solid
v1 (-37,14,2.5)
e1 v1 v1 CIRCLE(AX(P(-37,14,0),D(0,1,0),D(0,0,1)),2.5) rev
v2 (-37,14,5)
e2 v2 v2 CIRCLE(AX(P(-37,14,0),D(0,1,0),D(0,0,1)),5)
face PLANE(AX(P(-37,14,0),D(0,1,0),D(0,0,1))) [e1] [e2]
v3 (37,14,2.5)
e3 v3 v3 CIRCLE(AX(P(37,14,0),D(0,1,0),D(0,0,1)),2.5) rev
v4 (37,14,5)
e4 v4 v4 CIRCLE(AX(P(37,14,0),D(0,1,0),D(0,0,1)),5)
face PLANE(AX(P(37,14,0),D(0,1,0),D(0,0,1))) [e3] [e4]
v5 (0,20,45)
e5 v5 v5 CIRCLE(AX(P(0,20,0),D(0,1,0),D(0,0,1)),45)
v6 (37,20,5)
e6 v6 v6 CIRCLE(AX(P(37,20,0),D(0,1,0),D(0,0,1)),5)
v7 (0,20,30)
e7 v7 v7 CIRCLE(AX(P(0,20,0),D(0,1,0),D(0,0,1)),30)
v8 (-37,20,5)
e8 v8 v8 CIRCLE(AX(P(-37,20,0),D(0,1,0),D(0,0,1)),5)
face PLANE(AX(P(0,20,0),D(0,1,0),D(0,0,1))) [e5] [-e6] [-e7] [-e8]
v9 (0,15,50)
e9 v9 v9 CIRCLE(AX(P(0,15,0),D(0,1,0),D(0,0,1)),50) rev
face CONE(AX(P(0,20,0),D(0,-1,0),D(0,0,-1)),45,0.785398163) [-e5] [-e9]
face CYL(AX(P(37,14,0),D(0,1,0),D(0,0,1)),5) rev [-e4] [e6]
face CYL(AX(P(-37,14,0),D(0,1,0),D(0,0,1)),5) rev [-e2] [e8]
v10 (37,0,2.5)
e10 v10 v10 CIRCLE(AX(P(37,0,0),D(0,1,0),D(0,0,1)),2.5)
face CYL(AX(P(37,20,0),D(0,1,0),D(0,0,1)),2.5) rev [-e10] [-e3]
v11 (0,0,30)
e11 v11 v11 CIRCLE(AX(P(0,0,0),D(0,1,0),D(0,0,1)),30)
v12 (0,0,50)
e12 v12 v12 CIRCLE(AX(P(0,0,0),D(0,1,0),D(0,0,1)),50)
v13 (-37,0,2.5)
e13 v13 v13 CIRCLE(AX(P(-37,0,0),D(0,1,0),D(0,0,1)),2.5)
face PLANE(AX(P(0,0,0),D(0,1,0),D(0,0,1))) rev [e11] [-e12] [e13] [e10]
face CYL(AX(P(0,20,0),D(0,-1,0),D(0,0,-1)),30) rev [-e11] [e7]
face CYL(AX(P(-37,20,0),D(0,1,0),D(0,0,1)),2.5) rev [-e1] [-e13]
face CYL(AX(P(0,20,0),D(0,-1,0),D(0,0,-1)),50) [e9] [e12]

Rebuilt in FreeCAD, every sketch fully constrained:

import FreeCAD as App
import Part
import Sketcher

V = App.Vector


def edges_at(feature, points):
    """Names of the edges that pass closest to the given points."""
    edges = feature.Shape.Edges
    near = lambda p: min(range(len(edges)), key=lambda i: edges[i].distToShape(Part.Vertex(*p))[0])
    return sorted({f"Edge{near(p) + 1}" for p in points})

doc = App.newDocument("Part")
params = doc.addObject("Spreadsheet::Sheet", "Params")
for row, (alias, value) in enumerate([
    ("sketch1_diameter", "100 mm"),
    ("sketch1_diameter2", "60 mm"),
    ("pad1_length", "20 mm"),
    ("chamfer_size", "5 mm"),
    ("sketch2_diameter", "5 mm"),
    ("hole_diameter", "5 mm"),
    ("hole_depth", "50 mm"),
    ("sketch3_diameter", "10 mm"),
    ("pocket1_length", "6 mm"),
], start=1):
    params.set(f"A{row}", alias)
    params.set(f"B{row}", "=" + value)
    params.setAlias(f"B{row}", alias)

body = doc.addObject("PartDesign::Body", "Body")

sketch1 = body.newObject("Sketcher::SketchObject", "Sketch")
sketch1.AttachmentSupport = (doc.getObject("XZ_Plane"), [""])
sketch1.MapMode = "FlatFace"
sketch1.addGeometry([
    Part.Circle(V(0, 0, 0), V(0, 0, 1), 50),
    Part.Circle(V(0, 0, 0), V(0, 0, 1), 30),
], False)
sketch1.addConstraint([
    Sketcher.Constraint("Coincident", 0, 3, -1, 1),
    Sketcher.Constraint("Coincident", 1, 3, -1, 1),
    Sketcher.Constraint("Diameter", 0, 100.0),
    Sketcher.Constraint("Diameter", 1, 60.0),
])
sketch1.setExpression("Constraints[2]", "Params.sketch1_diameter")
sketch1.setExpression("Constraints[3]", "Params.sketch1_diameter2")
pad1 = body.newObject("PartDesign::Pad", "Pad")
pad1.Profile = sketch1
pad1.setExpression("Length", "Params.pad1_length")
pad1.Reversed = True
doc.recompute()

chamfer = body.newObject("PartDesign::Chamfer", "Chamfer")
chamfer.Base = (pad1, edges_at(pad1, [(0, 20, -50)]))
chamfer.setExpression("Size", "Params.chamfer_size")

sketch2 = body.newObject("Sketcher::SketchObject", "Sketch001")
sketch2.AttachmentSupport = (doc.getObject("XZ_Plane"), [""])
sketch2.MapMode = "FlatFace"
sketch2.AttachmentOffset = App.Placement(V(0, 0, -20), App.Rotation())
sketch2.addGeometry([
    Part.Circle(V(-37, 0, 0), V(0, 0, 1), 2.5),
    Part.Circle(V(37, 0, 0), V(0, 0, 1), 2.5),
], False)
sketch2.addConstraint([
    Sketcher.Constraint("Equal", 0, 1),
    Sketcher.Constraint("Symmetric", 0, 3, 1, 3, -1, 1),
    Sketcher.Constraint("PointOnObject", 0, 3, -1),
    Sketcher.Constraint("Diameter", 0, 5.0),
    Sketcher.Constraint("DistanceX", 0, 3, -1, 1, 37.0),
])
sketch2.setExpression("Constraints[3]", "Params.sketch2_diameter")
doc.recompute()
hole = body.newObject("PartDesign::Hole", "Hole")
hole.Profile = sketch2
hole.ThreadType = "None"
hole.setExpression("Diameter", "Params.hole_diameter")
hole.DepthType = "Dimension"
hole.setExpression("Depth", "Params.hole_depth")
hole.DrillPoint = "Angled"
hole.DrillPointAngle = 118
hole.Reversed = True

sketch3 = body.newObject("Sketcher::SketchObject", "Sketch002")
sketch3.AttachmentSupport = (doc.getObject("XZ_Plane"), [""])
sketch3.MapMode = "FlatFace"
sketch3.AttachmentOffset = App.Placement(V(0, 0, -20), App.Rotation())
sketch3.addGeometry([
    Part.Circle(V(-37, 0, 0), V(0, 0, 1), 5),
    Part.Circle(V(37, 0, 0), V(0, 0, 1), 5),
], False)
sketch3.addConstraint([
    Sketcher.Constraint("Equal", 0, 1),
    Sketcher.Constraint("Symmetric", 0, 3, 1, 3, -1, 1),
    Sketcher.Constraint("PointOnObject", 0, 3, -1),
    Sketcher.Constraint("Diameter", 0, 10.0),
    Sketcher.Constraint("DistanceX", 0, 3, -1, 1, 37.0),
])
sketch3.setExpression("Constraints[3]", "Params.sketch3_diameter")
pocket1 = body.newObject("PartDesign::Pocket", "Pocket")
pocket1.Profile = sketch3
pocket1.setExpression("Length", "Params.pocket1_length")
pocket1.Reversed = True

doc.recompute()
